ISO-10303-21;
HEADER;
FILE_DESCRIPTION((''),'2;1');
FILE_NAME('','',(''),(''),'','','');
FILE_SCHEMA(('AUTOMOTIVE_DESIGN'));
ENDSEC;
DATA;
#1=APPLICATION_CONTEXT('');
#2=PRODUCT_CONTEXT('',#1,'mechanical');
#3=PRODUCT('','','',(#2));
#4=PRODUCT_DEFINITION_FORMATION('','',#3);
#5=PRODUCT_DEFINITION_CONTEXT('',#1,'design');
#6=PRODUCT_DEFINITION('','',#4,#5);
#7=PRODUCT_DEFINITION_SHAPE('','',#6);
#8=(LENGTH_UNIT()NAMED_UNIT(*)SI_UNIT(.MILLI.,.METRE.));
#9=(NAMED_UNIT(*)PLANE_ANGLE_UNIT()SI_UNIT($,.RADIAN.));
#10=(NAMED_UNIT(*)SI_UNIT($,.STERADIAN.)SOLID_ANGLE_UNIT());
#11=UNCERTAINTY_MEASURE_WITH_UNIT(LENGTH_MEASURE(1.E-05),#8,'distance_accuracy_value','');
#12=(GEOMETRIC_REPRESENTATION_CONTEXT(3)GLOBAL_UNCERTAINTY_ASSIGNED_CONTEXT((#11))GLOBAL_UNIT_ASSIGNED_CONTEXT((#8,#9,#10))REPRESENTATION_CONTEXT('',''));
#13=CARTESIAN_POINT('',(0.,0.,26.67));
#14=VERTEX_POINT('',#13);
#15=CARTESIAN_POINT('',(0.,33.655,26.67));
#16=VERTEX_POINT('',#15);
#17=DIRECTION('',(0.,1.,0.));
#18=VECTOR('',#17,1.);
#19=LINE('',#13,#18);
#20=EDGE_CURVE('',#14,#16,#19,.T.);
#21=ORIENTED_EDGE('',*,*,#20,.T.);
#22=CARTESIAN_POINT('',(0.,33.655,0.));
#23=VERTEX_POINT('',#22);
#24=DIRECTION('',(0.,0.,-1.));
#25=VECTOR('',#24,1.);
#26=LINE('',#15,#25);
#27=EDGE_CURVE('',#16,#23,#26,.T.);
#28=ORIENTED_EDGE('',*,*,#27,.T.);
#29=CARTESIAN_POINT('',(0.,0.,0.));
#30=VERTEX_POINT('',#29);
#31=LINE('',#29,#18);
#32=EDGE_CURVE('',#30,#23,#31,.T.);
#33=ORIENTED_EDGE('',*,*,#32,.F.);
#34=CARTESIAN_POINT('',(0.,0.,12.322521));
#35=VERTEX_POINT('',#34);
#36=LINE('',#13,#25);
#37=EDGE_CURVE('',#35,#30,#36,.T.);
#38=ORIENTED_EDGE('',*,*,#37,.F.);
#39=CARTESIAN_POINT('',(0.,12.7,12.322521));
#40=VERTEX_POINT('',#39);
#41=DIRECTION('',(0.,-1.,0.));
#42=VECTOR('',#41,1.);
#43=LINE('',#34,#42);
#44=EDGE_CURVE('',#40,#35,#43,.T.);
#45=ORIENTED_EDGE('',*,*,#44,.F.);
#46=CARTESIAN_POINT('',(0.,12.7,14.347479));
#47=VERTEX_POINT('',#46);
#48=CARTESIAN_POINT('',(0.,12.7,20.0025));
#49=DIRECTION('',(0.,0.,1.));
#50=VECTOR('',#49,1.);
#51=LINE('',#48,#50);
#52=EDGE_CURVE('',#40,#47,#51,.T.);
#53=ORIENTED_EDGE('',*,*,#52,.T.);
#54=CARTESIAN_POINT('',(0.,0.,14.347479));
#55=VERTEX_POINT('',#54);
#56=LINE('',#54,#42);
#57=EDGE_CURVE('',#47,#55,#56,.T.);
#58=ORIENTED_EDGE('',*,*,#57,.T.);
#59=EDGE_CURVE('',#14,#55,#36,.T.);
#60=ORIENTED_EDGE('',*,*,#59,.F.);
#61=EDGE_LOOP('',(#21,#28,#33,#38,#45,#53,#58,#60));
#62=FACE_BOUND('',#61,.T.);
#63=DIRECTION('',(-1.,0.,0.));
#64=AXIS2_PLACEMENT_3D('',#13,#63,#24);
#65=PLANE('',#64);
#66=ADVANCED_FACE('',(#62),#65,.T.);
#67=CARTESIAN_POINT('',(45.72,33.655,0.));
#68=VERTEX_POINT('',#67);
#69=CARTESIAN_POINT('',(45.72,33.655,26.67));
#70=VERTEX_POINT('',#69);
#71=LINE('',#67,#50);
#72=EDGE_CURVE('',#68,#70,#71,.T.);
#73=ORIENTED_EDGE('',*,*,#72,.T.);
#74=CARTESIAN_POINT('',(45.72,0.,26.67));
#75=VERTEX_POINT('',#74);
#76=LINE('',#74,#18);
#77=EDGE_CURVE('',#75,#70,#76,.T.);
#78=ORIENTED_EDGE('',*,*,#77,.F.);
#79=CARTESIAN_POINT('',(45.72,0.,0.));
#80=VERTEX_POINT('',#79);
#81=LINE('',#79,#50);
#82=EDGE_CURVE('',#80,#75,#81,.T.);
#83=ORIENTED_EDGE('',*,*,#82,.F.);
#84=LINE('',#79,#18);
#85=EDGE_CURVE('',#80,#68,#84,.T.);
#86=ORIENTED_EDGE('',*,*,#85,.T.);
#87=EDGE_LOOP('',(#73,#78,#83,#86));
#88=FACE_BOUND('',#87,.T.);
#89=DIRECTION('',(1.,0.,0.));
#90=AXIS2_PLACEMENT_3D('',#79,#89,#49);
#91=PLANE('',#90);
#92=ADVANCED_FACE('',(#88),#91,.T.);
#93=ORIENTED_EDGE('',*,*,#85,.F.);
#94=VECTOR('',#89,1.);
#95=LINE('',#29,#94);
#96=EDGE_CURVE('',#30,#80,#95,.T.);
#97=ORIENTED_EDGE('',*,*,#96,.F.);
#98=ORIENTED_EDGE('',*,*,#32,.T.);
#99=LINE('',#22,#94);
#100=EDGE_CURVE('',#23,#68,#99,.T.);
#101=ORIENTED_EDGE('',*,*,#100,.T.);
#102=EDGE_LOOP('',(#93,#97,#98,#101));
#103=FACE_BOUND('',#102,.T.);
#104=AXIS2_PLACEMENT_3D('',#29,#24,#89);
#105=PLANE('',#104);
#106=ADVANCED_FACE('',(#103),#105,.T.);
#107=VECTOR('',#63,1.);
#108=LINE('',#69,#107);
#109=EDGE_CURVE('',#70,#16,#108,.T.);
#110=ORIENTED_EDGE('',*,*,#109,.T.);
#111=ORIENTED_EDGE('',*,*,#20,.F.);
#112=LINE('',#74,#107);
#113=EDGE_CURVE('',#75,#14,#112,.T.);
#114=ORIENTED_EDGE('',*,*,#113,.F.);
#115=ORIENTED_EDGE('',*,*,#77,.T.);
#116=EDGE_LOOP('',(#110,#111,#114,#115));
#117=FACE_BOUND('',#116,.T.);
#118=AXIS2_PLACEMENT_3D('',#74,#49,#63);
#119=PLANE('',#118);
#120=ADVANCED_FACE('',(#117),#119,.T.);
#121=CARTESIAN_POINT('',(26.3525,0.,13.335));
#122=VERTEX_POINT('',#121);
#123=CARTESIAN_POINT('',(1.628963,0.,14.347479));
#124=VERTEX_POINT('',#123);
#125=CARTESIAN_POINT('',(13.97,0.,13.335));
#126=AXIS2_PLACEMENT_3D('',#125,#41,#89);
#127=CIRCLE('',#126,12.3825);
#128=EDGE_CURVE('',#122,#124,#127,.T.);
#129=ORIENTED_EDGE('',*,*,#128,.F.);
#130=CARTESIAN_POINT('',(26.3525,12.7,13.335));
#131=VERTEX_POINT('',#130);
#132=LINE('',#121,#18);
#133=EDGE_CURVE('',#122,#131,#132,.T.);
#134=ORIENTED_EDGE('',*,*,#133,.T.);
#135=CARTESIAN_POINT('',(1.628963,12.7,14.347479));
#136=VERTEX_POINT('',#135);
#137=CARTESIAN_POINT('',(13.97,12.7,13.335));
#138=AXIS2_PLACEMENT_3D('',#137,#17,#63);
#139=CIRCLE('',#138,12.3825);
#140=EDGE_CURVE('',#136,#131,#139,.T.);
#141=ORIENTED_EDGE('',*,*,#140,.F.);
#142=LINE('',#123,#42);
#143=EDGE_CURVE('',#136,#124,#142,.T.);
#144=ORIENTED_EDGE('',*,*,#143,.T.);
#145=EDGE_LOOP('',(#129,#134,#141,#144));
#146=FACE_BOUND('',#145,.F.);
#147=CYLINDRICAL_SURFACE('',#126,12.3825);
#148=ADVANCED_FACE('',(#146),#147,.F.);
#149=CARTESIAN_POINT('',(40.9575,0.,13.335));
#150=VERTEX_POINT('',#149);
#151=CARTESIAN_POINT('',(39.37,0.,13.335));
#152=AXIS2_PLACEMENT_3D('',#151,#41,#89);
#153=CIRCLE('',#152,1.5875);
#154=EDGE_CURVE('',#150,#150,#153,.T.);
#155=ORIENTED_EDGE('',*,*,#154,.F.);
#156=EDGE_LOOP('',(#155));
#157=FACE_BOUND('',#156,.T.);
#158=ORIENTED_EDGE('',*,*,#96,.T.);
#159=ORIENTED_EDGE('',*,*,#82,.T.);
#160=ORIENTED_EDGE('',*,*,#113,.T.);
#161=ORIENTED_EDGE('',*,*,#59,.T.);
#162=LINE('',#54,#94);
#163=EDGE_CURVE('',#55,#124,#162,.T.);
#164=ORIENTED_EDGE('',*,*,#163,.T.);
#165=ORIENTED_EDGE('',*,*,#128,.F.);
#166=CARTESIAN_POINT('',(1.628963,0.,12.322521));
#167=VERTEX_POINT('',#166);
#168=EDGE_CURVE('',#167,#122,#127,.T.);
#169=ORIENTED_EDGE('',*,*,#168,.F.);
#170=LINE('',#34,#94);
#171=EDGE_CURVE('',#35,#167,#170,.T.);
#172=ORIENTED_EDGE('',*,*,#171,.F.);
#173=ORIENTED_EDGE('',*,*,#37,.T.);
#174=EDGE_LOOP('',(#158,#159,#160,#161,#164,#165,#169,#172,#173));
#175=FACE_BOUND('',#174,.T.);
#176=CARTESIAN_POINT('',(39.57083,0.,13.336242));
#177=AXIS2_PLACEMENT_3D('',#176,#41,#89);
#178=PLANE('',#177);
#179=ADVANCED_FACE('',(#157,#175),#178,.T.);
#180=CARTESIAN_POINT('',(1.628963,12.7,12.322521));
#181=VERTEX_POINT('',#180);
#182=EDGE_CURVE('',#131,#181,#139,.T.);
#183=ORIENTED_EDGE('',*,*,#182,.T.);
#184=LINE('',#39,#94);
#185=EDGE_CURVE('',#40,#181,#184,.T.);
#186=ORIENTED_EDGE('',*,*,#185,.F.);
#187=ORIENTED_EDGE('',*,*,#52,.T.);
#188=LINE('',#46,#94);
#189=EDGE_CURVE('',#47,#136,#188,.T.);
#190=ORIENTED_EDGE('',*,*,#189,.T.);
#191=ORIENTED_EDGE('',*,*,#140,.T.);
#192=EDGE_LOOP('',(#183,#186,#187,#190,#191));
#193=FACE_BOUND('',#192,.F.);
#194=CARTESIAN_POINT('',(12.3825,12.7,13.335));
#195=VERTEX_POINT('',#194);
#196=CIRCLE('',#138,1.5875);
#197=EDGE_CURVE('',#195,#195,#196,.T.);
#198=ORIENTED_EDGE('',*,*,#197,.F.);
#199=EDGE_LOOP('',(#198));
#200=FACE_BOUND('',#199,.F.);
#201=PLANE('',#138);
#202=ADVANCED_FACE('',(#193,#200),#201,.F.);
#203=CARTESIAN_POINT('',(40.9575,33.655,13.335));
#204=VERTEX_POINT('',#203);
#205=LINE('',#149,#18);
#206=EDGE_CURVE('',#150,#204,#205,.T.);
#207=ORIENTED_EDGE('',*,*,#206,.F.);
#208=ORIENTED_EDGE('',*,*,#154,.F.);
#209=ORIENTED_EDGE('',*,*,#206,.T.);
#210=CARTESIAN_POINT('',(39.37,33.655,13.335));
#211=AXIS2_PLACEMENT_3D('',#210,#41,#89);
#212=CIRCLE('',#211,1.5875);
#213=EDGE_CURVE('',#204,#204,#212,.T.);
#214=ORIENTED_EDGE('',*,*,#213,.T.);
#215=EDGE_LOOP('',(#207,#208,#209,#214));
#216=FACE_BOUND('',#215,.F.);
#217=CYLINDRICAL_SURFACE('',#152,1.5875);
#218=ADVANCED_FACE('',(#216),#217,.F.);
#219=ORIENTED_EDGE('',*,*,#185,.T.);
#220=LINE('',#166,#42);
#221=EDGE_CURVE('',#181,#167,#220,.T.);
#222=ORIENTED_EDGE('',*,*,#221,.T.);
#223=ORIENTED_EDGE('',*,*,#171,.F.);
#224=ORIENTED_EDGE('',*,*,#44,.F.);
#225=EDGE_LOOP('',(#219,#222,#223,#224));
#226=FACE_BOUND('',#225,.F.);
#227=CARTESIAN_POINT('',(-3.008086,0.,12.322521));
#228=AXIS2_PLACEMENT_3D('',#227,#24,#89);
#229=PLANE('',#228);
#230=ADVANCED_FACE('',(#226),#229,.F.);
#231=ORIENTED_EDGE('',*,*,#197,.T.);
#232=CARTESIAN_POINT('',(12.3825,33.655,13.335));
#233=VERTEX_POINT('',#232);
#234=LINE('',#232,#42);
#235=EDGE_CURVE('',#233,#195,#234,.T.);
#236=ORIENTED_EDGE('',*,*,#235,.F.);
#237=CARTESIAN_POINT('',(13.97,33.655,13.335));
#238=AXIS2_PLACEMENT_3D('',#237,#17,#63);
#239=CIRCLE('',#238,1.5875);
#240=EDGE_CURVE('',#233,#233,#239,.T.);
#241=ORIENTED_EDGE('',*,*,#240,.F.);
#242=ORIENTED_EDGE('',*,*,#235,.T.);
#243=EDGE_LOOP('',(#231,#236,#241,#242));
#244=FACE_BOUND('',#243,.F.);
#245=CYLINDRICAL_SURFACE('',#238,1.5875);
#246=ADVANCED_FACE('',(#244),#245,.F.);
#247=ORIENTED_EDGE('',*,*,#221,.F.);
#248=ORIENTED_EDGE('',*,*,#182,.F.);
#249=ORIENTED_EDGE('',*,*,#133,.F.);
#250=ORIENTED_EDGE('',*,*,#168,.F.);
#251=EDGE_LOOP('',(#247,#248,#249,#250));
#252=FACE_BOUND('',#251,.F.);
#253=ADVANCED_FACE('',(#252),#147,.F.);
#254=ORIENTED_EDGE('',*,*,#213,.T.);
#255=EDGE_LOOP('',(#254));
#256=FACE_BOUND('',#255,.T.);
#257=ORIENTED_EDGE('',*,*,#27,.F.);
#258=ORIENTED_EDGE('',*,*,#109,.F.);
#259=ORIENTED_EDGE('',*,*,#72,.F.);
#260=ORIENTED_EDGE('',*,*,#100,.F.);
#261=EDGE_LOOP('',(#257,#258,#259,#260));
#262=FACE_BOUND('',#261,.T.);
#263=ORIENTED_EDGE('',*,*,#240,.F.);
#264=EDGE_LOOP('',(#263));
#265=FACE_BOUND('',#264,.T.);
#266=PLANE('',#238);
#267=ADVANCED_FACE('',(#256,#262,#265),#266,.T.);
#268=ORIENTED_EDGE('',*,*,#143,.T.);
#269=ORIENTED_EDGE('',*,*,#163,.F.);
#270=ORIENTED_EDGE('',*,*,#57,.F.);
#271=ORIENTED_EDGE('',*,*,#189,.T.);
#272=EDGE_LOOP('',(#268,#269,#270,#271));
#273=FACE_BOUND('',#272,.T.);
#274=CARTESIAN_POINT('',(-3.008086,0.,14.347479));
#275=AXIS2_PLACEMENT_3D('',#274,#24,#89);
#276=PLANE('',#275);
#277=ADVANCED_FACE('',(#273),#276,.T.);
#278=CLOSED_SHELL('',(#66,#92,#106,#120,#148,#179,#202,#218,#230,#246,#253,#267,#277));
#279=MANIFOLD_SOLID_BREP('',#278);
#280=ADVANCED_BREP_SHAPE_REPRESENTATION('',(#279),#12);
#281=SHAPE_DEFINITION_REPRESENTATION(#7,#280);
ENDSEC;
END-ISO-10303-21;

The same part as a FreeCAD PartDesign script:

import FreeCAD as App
import Part
import Sketcher
from FreeCAD import Vector
Q = App.Units.Quantity

doc = App.newDocument("Part")
body = doc.addObject("PartDesign::Body", "Body")

# Sketch on XZ plane
sketch1 = body.newObject("Sketcher::SketchObject", "Sketch")
sketch1.AttachmentSupport = (doc.getObject("XZ_Plane"), [""])
sketch1.MapMode = "FlatFace"
sketch1.addGeometry([
    Part.LineSegment(Vector(45.7, 0, 0), Vector(45.7, 26.7, 0)),  # 0
    Part.LineSegment(Vector(45.7, 26.7, 0), Vector(0, 26.7, 0)),  # 1
    Part.LineSegment(Vector(0, 26.7, 0), Vector(0, 0, 0)),  # 2
    Part.LineSegment(Vector(0, 0, 0), Vector(45.7, 0, 0)),  # 3
    Part.Circle(Vector(14, 13.3, 0), Vector(0, 0, 1), 12.4),  # 4
    Part.Circle(Vector(39.4, 13.3, 0), Vector(0, 0, 1), 1.6),  # 5
], False)
sketch1.addConstraint([
    Sketcher.Constraint("Coincident", 0, 2, 1, 1),
    Sketcher.Constraint("Coincident", 1, 2, 2, 1),
    Sketcher.Constraint("Coincident", 2, 2, 3, 1),
    Sketcher.Constraint("Coincident", 3, 2, 0, 1),
    Sketcher.Constraint("Vertical", 0),
    Sketcher.Constraint("Horizontal", 1),
    Sketcher.Constraint("Vertical", 2),
    Sketcher.Constraint("Horizontal", 3),
    Sketcher.Constraint("Coincident", 2, 2, -1, 1),
    Sketcher.Constraint("Horizontal", 4, 3, 5, 3),
    Sketcher.Constraint("Diameter", 4, Q("0.975 in")),
    Sketcher.Constraint("Diameter", 5, Q("0.125 in")),
    Sketcher.Constraint("DistanceX", 1, 2, 1, 1, Q("1.8 in")),
    Sketcher.Constraint("DistanceX", 4, 3, 5, 3, Q("1 in")),
    Sketcher.Constraint("DistanceY", 0, 1, 0, 2, Q("1.05 in")),
    Sketcher.Constraint("DistanceX", -1, 1, 4, 3, Q("0.55 in")),
    Sketcher.Constraint("DistanceY", -1, 1, 4, 3, Q("0.525 in")),
])
pad1 = body.newObject("PartDesign::Pad", "Pad")
pad1.Profile = sketch1
pad1.Length = Q("1.325 in")
pad1.Reversed = True

# Sketch on XZ plane
sketch2 = body.newObject("Sketcher::SketchObject", "Sketch001")
sketch2.AttachmentSupport = (doc.getObject("XZ_Plane"), [""])
sketch2.MapMode = "FlatFace"
sketch2.addGeometry([
    Part.LineSegment(Vector(-3, 14.3, 0), Vector(-3, 12.3, 0)),
    Part.LineSegment(Vector(-3, 12.3, 0), Vector(3, 12.3, 0)),
    Part.LineSegment(Vector(3, 12.3, 0), Vector(3, 14.3, 0)),
    Part.LineSegment(Vector(3, 14.3, 0), Vector(-3, 14.3, 0)),
], False)
sketch2.addConstraint([
    Sketcher.Constraint("Coincident", 0, 2, 1, 1),
    Sketcher.Constraint("Coincident", 1, 2, 2, 1),
    Sketcher.Constraint("Coincident", 2, 2, 3, 1),
    Sketcher.Constraint("Coincident", 3, 2, 0, 1),
    Sketcher.Constraint("Vertical", 0),
    Sketcher.Constraint("Horizontal", 1),
    Sketcher.Constraint("Vertical", 2),
    Sketcher.Constraint("Horizontal", 3),
    Sketcher.Constraint("DistanceX", 1, 1, 1, 2, 6.016172),
    Sketcher.Constraint("DistanceY", 0, 2, 0, 1, 2.024958),
    Sketcher.Constraint("DistanceY", -1, 1, 0, 2, 12.322521),
    Sketcher.Constraint("DistanceX", 0, 2, -1, 1, 3.008086),
])
pocket1 = body.newObject("PartDesign::Pocket", "Pocket")
pocket1.Profile = sketch2
pocket1.Length = Q("0.5 in")

# Sketch on XZ plane
sketch3 = body.newObject("Sketcher::SketchObject", "Sketch002")
sketch3.AttachmentSupport = (doc.getObject("XZ_Plane"), [""])
sketch3.MapMode = "FlatFace"
sketch3.AttachmentOffset = App.Placement(Vector(0, 0, -1.325 * 25.4), App.Rotation())
sketch3.addGeometry([
    Part.Circle(Vector(14, 13.3, 0), Vector(0, 0, 1), 12.4),
    Part.Circle(Vector(14, 13.3, 0), Vector(0, 0, 1), 1.6),
], False)
sketch3.addConstraint([
    Sketcher.Constraint("Coincident", 1, 3, 0, 3),
    Sketcher.Constraint("Diameter", 0, Q("0.975 in")),
    Sketcher.Constraint("Diameter", 1, Q("0.125 in")),
    Sketcher.Constraint("DistanceX", -1, 1, 0, 3, Q("0.55 in")),
    Sketcher.Constraint("DistanceY", -1, 1, 0, 3, Q("0.525 in")),
])
pad2 = body.newObject("PartDesign::Pad", "Pad001")
pad2.Profile = sketch3
pad2.Length = Q("0.825 in")

doc.recompute()
